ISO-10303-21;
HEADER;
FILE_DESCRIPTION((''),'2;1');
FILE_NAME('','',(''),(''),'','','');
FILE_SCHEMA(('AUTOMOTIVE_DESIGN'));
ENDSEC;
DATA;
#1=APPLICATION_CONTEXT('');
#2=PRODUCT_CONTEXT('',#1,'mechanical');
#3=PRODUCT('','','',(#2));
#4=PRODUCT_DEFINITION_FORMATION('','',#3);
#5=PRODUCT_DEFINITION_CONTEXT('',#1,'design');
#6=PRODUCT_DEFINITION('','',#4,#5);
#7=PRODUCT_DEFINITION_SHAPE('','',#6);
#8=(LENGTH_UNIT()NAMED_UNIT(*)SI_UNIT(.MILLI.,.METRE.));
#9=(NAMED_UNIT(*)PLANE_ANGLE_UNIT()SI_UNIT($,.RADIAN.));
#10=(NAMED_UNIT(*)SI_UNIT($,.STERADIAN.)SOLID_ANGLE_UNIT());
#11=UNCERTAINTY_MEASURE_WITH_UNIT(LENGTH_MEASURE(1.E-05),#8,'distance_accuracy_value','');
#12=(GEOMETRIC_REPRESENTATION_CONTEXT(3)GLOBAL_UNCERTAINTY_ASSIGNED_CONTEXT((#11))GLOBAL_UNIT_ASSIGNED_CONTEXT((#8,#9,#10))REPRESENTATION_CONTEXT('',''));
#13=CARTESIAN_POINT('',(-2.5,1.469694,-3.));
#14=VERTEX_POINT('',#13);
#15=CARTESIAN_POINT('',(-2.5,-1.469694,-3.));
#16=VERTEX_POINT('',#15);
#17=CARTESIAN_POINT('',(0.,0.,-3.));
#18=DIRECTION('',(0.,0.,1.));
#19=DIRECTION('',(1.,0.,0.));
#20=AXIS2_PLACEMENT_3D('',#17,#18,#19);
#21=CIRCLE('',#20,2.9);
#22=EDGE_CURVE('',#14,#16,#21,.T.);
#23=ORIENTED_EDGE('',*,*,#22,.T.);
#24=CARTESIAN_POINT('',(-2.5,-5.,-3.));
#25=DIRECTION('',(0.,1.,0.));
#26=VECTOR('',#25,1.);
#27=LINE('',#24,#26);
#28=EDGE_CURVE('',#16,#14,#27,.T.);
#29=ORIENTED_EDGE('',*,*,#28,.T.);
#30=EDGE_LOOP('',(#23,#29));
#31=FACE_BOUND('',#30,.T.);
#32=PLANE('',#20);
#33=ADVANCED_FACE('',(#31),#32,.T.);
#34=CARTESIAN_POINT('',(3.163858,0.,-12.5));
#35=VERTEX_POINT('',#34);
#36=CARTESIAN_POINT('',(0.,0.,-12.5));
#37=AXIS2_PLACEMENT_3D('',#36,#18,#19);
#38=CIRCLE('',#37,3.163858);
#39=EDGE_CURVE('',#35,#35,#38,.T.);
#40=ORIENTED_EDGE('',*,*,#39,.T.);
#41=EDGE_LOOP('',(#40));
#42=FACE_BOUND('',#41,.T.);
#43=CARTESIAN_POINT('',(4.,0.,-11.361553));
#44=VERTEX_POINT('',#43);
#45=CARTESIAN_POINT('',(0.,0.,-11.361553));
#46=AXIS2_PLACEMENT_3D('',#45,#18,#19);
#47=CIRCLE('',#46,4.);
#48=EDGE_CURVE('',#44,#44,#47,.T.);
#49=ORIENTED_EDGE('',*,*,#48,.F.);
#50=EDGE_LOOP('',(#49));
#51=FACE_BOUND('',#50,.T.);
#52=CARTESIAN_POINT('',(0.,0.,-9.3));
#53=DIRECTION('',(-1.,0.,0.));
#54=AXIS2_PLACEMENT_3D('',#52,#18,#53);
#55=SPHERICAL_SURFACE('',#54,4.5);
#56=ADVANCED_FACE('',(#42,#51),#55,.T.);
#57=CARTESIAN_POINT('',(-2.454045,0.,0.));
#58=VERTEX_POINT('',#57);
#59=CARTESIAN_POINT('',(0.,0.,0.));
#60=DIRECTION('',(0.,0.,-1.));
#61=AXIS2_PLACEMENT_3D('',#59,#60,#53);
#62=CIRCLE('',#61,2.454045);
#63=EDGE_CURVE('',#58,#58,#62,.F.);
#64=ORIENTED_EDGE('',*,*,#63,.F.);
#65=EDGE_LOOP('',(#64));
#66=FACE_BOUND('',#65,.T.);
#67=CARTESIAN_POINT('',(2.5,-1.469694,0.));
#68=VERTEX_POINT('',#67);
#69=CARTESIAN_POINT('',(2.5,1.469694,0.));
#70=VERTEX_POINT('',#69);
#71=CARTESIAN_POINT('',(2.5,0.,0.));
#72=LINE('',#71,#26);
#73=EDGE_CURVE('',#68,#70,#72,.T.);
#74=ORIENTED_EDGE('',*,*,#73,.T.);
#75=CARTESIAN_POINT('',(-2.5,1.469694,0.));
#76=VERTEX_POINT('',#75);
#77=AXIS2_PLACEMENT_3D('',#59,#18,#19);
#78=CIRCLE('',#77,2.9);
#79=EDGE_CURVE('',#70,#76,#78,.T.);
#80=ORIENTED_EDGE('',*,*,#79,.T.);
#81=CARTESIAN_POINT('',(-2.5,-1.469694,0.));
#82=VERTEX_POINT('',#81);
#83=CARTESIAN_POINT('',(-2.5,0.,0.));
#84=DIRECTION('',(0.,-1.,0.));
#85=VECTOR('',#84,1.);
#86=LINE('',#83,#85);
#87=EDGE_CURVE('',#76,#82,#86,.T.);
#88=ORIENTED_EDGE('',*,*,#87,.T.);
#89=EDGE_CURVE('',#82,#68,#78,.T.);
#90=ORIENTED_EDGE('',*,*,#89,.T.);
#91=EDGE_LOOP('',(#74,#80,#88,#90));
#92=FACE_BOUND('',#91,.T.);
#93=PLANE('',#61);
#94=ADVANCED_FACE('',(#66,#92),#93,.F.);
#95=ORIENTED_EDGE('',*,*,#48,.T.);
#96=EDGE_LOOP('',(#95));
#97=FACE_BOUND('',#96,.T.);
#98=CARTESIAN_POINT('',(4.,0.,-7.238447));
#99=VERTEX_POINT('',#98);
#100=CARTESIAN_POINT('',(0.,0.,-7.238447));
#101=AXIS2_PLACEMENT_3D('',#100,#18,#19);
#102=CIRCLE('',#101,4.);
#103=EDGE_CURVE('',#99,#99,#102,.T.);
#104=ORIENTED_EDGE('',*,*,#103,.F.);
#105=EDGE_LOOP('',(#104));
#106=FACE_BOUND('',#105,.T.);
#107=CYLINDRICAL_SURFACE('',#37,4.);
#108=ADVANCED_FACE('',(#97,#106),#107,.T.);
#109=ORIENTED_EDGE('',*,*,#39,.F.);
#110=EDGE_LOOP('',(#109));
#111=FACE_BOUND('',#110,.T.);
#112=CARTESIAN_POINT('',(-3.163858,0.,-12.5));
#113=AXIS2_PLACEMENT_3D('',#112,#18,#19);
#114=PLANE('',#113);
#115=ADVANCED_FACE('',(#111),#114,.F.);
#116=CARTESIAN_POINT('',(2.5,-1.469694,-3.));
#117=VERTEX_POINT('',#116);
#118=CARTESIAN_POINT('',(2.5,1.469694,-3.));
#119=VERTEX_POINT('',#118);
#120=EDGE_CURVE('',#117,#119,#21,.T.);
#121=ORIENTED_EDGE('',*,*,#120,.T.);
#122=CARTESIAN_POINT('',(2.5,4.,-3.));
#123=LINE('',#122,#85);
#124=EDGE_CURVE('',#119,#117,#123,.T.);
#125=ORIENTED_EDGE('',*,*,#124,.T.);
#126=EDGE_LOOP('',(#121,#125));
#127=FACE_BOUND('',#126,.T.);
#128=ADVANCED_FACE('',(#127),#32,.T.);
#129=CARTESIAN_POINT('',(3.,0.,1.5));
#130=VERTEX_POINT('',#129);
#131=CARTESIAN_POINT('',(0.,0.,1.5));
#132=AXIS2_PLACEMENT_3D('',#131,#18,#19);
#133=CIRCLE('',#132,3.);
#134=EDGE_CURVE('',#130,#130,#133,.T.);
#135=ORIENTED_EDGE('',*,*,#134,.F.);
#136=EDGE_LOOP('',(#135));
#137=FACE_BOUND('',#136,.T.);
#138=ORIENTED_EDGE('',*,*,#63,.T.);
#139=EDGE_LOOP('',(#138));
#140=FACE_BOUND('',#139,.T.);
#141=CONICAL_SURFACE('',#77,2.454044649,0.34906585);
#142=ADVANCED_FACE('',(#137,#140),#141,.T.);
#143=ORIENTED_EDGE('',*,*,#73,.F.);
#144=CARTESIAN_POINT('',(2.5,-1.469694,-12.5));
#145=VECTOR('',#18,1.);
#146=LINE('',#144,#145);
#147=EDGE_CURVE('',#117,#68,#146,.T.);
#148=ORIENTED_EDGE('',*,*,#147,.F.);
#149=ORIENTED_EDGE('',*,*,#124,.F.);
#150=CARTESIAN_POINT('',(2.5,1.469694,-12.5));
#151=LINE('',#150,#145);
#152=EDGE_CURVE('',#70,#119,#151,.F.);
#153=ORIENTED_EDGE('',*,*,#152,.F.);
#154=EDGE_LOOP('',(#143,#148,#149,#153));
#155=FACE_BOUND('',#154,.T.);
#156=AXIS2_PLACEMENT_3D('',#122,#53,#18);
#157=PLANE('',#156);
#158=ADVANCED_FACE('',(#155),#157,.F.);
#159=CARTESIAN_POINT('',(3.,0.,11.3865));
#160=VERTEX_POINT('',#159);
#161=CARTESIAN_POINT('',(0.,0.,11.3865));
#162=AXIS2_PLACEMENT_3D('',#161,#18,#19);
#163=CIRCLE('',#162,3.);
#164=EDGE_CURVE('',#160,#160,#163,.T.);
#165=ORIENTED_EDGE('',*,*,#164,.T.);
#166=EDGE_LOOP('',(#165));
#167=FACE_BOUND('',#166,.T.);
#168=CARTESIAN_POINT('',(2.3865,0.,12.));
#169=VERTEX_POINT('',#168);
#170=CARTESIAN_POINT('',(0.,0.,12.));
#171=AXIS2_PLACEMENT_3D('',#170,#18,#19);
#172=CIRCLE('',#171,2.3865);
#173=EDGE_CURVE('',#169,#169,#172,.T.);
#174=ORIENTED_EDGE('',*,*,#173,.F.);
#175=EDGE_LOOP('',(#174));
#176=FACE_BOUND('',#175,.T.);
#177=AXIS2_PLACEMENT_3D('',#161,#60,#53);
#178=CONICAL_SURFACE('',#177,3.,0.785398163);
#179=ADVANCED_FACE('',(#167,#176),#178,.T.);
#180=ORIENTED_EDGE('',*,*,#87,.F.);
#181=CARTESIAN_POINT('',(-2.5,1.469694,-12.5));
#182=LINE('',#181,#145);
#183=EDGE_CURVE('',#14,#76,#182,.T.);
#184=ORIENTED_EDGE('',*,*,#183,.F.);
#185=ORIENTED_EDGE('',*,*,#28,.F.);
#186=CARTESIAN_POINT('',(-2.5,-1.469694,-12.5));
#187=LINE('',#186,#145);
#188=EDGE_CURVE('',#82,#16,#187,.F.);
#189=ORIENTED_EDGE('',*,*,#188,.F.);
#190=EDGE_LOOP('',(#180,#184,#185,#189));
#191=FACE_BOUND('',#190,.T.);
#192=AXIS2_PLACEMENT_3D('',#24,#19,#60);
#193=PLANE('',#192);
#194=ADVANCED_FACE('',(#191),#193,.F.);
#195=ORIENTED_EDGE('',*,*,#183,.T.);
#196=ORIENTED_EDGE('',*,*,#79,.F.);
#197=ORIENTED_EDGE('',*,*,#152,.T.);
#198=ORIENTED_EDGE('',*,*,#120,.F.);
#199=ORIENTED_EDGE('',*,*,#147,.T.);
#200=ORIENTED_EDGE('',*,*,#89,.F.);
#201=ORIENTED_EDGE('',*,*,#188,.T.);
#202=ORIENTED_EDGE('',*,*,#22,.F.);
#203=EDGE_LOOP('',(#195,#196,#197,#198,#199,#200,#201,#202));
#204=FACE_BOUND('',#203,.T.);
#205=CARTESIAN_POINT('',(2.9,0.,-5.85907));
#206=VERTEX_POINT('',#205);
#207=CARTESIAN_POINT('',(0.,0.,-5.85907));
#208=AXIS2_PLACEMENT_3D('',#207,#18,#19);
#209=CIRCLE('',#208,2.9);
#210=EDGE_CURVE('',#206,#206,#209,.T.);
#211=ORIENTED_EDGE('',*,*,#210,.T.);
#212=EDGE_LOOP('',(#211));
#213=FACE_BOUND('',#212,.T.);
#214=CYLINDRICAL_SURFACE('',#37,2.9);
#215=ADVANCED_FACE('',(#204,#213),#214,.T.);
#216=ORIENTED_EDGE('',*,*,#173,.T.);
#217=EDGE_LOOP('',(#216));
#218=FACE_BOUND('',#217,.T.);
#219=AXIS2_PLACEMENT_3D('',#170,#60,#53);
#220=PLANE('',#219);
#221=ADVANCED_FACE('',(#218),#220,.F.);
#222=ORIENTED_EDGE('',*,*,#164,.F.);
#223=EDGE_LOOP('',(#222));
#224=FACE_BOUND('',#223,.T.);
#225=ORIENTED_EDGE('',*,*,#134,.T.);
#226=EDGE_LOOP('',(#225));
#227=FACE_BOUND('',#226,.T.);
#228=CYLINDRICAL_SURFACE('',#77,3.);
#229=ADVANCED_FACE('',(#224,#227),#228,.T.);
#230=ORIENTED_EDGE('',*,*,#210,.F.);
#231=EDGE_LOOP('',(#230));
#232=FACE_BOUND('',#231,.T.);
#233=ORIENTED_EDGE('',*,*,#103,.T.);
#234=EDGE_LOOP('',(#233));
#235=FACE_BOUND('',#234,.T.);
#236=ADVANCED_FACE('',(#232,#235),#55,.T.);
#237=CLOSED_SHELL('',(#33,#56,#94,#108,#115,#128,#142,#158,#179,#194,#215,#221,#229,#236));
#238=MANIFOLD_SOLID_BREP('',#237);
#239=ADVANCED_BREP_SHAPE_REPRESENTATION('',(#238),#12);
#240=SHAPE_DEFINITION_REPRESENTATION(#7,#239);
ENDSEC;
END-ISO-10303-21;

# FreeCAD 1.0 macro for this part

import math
import FreeCAD as App
import Part
import Sketcher
from FreeCAD import Vector
Q = App.Units.Quantity

doc = App.newDocument("Part")
body = doc.addObject("PartDesign::Body", "Body")

# Sketch on XZ plane
sketch1 = doc.addObject("Sketcher::SketchObject", "Sketch")
body.addObject(sketch1)
sketch1.AttachmentSupport = (doc.XZ_Plane, [""])
sketch1.MapMode = "FlatFace"
sketch1.addGeometry(Part.LineSegment(Vector(-2.9, 0, 0), Vector(0, 0, 0)), False)
sketch1.addGeometry(Part.LineSegment(Vector(0, 0, 0), Vector(0, -12.5, 0)), False)
sketch1.addGeometry(Part.LineSegment(Vector(0, -12.5, 0), Vector(-3.2, -12.5, 0)), False)
sketch1.addGeometry(Part.ArcOfCircle(Part.Circle(Vector(0, -9.3, 0), Vector(0, 0, 1), 4.5), math.radians(-152.73), math.radians(-134.67)), False)
sketch1.addGeometry(Part.LineSegment(Vector(-4, -11.4, 0), Vector(-4, -7.2, 0)), False)
sketch1.addGeometry(Part.ArcOfCircle(Part.Circle(Vector(0, -9.3, 0), Vector(0, 0, 1), 4.5), math.radians(130), math.radians(153)), False)
sketch1.addGeometry(Part.LineSegment(Vector(-2.9, -5.9, 0), Vector(-2.9, 0, 0)), False)
sketch1.addConstraint(Sketcher.Constraint("Coincident", 0, 2, 1, 1))
sketch1.addConstraint(Sketcher.Constraint("Coincident", 1, 2, 2, 1))
sketch1.addConstraint(Sketcher.Constraint("Coincident", 2, 2, 3, 2))
sketch1.addConstraint(Sketcher.Constraint("Coincident", 3, 1, 4, 1))
sketch1.addConstraint(Sketcher.Constraint("Coincident", 4, 2, 5, 2))
sketch1.addConstraint(Sketcher.Constraint("Coincident", 5, 1, 6, 1))
sketch1.addConstraint(Sketcher.Constraint("Coincident", 6, 2, 0, 1))
sketch1.addConstraint(Sketcher.Constraint("Horizontal", 0))
sketch1.addConstraint(Sketcher.Constraint("Vertical", 1))
sketch1.addConstraint(Sketcher.Constraint("Horizontal", 2))
sketch1.addConstraint(Sketcher.Constraint("Vertical", 4))
sketch1.addConstraint(Sketcher.Constraint("Vertical", 6))
sketch1.addConstraint(Sketcher.Constraint("Coincident", 0, 2, -1, 1))
sketch1.addConstraint(Sketcher.Constraint("Coincident", 5, 3, 3, 3))
sketch1.addConstraint(Sketcher.Constraint("Equal", 3, 5))
sketch1.addConstraint(Sketcher.Constraint("PointOnObject", 3, 3, -2))
sketch1.addConstraint(Sketcher.Constraint("Radius", 3, Q("4.5 mm")))
sketch1.addConstraint(Sketcher.Constraint("DistanceX", 0, 1, 0, 2, Q("2.9 mm")))
sketch1.addConstraint(Sketcher.Constraint("DistanceY", 1, 2, 1, 1, Q("12.5 mm")))
sketch1.addConstraint(Sketcher.Constraint("DistanceX", 3, 1, -1, 1, Q("4 mm")))
sketch1.addConstraint(Sketcher.Constraint("DistanceY", 3, 3, -1, 1, Q("9.3 mm")))
revolution = doc.addObject("PartDesign::Revolution", "Revolution")
body.addObject(revolution)
revolution.Profile = sketch1
revolution.ReferenceAxis = (sketch1, ["V_Axis"])
revolution.Angle = 360

# Sketch on XY plane
sketch2 = doc.addObject("Sketcher::SketchObject", "Sketch001")
body.addObject(sketch2)
sketch2.AttachmentSupport = (doc.XY_Plane, [""])
sketch2.MapMode = "FlatFace"
sketch2.addGeometry(Part.LineSegment(Vector(6, 4, 0), Vector(2.5, 4, 0)), False)
sketch2.addGeometry(Part.LineSegment(Vector(2.5, 4, 0), Vector(2.5, -5, 0)), False)
sketch2.addGeometry(Part.LineSegment(Vector(2.5, -5, 0), Vector(-2.5, -5, 0)), False)
sketch2.addGeometry(Part.LineSegment(Vector(-2.5, -5, 0), Vector(-2.5, 4, 0)), False)
sketch2.addGeometry(Part.LineSegment(Vector(-2.5, 4, 0), Vector(-6, 4, 0)), False)
sketch2.addGeometry(Part.LineSegment(Vector(-6, 4, 0), Vector(-6, -6, 0)), False)
sketch2.addGeometry(Part.LineSegment(Vector(-6, -6, 0), Vector(6, -6, 0)), False)
sketch2.addGeometry(Part.LineSegment(Vector(6, -6, 0), Vector(6, 4, 0)), False)
sketch2.addConstraint(Sketcher.Constraint("Coincident", 0, 2, 1, 1))
sketch2.addConstraint(Sketcher.Constraint("Coincident", 1, 2, 2, 1))
sketch2.addConstraint(Sketcher.Constraint("Coincident", 2, 2, 3, 1))
sketch2.addConstraint(Sketcher.Constraint("Coincident", 3, 2, 4, 1))
sketch2.addConstraint(Sketcher.Constraint("Coincident", 4, 2, 5, 1))
sketch2.addConstraint(Sketcher.Constraint("Coincident", 5, 2, 6, 1))
sketch2.addConstraint(Sketcher.Constraint("Coincident", 6, 2, 7, 1))
sketch2.addConstraint(Sketcher.Constraint("Coincident", 7, 2, 0, 1))
sketch2.addConstraint(Sketcher.Constraint("Horizontal", 0))
sketch2.addConstraint(Sketcher.Constraint("Vertical", 1))
sketch2.addConstraint(Sketcher.Constraint("Horizontal", 2))
sketch2.addConstraint(Sketcher.Constraint("Vertical", 3))
sketch2.addConstraint(Sketcher.Constraint("Horizontal", 4))
sketch2.addConstraint(Sketcher.Constraint("Vertical", 5))
sketch2.addConstraint(Sketcher.Constraint("Horizontal", 6))
sketch2.addConstraint(Sketcher.Constraint("Vertical", 7))
sketch2.addConstraint(Sketcher.Constraint("Symmetric", 0, 2, 3, 2, -2))
sketch2.addConstraint(Sketcher.Constraint("Equal", 0, 4))
sketch2.addConstraint(Sketcher.Constraint("DistanceX", 2, 2, 2, 1, Q("5 mm")))
sketch2.addConstraint(Sketcher.Constraint("DistanceX", 6, 1, 6, 2, Q("12 mm")))
sketch2.addConstraint(Sketcher.Constraint("DistanceY", 1, 2, 1, 1, Q("9 mm")))
sketch2.addConstraint(Sketcher.Constraint("DistanceY", 5, 2, 5, 1, Q("10 mm")))
sketch2.addConstraint(Sketcher.Constraint("DistanceY", -1, 1, 0, 2, Q("4 mm")))
pocket1 = doc.addObject("PartDesign::Pocket", "Pocket")
body.addObject(pocket1)
pocket1.Profile = sketch2
pocket1.Type = "TwoLengths"
pocket1.Length = 3
pocket1.Length2 = 3
pocket1.Reversed = True

# Sketch on XZ plane
sketch3 = doc.addObject("Sketcher::SketchObject", "Sketch002")
body.addObject(sketch3)
sketch3.AttachmentSupport = (doc.XZ_Plane, [""])
sketch3.MapMode = "FlatFace"
sketch3.addGeometry(Part.LineSegment(Vector(-2.4, 12, 0), Vector(0, 12, 0)), False)
sketch3.addGeometry(Part.LineSegment(Vector(0, 12, 0), Vector(0, 0, 0)), False)
sketch3.addGeometry(Part.LineSegment(Vector(0, 0, 0), Vector(-2.5, 0, 0)), False)
sketch3.addGeometry(Part.LineSegment(Vector(-2.5, 0, 0), Vector(-3, 1.5, 0)), False)
sketch3.addGeometry(Part.LineSegment(Vector(-3, 1.5, 0), Vector(-3, 11.4, 0)), False)
sketch3.addGeometry(Part.LineSegment(Vector(-3, 11.4, 0), Vector(-2.4, 12, 0)), False)
sketch3.addConstraint(Sketcher.Constraint("Coincident", 0, 2, 1, 1))
sketch3.addConstraint(Sketcher.Constraint("Coincident", 1, 2, 2, 1))
sketch3.addConstraint(Sketcher.Constraint("Coincident", 2, 2, 3, 1))
sketch3.addConstraint(Sketcher.Constraint("Coincident", 3, 2, 4, 1))
sketch3.addConstraint(Sketcher.Constraint("Coincident", 4, 2, 5, 1))
sketch3.addConstraint(Sketcher.Constraint("Coincident", 5, 2, 0, 1))
sketch3.addConstraint(Sketcher.Constraint("Horizontal", 0))
sketch3.addConstraint(Sketcher.Constraint("Vertical", 1))
sketch3.addConstraint(Sketcher.Constraint("Horizontal", 2))
sketch3.addConstraint(Sketcher.Constraint("Vertical", 4))
sketch3.addConstraint(Sketcher.Constraint("Coincident", 1, 2, -1, 1))
sketch3.addConstraint(Sketcher.Constraint("DistanceY", 1, 2, 1, 1, Q("12 mm")))
sketch3.addConstraint(Sketcher.Constraint("Angle", 3, Q("110 deg")))
sketch3.addConstraint(Sketcher.Constraint("Angle", 5, Q("45 deg")))
sketch3.addConstraint(Sketcher.Constraint("DistanceX", 3, 2, -1, 1, Q("3 mm")))
sketch3.addConstraint(Sketcher.Constraint("DistanceY", -1, 1, 3, 2, Q("1.5 mm")))
sketch3.addConstraint(Sketcher.Constraint("DistanceX", 0, 1, 0, 2, Q("2.3865 mm")))
revolution2 = doc.addObject("PartDesign::Revolution", "Revolution001")
body.addObject(revolution2)
revolution2.Profile = sketch3
revolution2.ReferenceAxis = (sketch3, ["V_Axis"])
revolution2.Angle = 360

doc.recompute()
